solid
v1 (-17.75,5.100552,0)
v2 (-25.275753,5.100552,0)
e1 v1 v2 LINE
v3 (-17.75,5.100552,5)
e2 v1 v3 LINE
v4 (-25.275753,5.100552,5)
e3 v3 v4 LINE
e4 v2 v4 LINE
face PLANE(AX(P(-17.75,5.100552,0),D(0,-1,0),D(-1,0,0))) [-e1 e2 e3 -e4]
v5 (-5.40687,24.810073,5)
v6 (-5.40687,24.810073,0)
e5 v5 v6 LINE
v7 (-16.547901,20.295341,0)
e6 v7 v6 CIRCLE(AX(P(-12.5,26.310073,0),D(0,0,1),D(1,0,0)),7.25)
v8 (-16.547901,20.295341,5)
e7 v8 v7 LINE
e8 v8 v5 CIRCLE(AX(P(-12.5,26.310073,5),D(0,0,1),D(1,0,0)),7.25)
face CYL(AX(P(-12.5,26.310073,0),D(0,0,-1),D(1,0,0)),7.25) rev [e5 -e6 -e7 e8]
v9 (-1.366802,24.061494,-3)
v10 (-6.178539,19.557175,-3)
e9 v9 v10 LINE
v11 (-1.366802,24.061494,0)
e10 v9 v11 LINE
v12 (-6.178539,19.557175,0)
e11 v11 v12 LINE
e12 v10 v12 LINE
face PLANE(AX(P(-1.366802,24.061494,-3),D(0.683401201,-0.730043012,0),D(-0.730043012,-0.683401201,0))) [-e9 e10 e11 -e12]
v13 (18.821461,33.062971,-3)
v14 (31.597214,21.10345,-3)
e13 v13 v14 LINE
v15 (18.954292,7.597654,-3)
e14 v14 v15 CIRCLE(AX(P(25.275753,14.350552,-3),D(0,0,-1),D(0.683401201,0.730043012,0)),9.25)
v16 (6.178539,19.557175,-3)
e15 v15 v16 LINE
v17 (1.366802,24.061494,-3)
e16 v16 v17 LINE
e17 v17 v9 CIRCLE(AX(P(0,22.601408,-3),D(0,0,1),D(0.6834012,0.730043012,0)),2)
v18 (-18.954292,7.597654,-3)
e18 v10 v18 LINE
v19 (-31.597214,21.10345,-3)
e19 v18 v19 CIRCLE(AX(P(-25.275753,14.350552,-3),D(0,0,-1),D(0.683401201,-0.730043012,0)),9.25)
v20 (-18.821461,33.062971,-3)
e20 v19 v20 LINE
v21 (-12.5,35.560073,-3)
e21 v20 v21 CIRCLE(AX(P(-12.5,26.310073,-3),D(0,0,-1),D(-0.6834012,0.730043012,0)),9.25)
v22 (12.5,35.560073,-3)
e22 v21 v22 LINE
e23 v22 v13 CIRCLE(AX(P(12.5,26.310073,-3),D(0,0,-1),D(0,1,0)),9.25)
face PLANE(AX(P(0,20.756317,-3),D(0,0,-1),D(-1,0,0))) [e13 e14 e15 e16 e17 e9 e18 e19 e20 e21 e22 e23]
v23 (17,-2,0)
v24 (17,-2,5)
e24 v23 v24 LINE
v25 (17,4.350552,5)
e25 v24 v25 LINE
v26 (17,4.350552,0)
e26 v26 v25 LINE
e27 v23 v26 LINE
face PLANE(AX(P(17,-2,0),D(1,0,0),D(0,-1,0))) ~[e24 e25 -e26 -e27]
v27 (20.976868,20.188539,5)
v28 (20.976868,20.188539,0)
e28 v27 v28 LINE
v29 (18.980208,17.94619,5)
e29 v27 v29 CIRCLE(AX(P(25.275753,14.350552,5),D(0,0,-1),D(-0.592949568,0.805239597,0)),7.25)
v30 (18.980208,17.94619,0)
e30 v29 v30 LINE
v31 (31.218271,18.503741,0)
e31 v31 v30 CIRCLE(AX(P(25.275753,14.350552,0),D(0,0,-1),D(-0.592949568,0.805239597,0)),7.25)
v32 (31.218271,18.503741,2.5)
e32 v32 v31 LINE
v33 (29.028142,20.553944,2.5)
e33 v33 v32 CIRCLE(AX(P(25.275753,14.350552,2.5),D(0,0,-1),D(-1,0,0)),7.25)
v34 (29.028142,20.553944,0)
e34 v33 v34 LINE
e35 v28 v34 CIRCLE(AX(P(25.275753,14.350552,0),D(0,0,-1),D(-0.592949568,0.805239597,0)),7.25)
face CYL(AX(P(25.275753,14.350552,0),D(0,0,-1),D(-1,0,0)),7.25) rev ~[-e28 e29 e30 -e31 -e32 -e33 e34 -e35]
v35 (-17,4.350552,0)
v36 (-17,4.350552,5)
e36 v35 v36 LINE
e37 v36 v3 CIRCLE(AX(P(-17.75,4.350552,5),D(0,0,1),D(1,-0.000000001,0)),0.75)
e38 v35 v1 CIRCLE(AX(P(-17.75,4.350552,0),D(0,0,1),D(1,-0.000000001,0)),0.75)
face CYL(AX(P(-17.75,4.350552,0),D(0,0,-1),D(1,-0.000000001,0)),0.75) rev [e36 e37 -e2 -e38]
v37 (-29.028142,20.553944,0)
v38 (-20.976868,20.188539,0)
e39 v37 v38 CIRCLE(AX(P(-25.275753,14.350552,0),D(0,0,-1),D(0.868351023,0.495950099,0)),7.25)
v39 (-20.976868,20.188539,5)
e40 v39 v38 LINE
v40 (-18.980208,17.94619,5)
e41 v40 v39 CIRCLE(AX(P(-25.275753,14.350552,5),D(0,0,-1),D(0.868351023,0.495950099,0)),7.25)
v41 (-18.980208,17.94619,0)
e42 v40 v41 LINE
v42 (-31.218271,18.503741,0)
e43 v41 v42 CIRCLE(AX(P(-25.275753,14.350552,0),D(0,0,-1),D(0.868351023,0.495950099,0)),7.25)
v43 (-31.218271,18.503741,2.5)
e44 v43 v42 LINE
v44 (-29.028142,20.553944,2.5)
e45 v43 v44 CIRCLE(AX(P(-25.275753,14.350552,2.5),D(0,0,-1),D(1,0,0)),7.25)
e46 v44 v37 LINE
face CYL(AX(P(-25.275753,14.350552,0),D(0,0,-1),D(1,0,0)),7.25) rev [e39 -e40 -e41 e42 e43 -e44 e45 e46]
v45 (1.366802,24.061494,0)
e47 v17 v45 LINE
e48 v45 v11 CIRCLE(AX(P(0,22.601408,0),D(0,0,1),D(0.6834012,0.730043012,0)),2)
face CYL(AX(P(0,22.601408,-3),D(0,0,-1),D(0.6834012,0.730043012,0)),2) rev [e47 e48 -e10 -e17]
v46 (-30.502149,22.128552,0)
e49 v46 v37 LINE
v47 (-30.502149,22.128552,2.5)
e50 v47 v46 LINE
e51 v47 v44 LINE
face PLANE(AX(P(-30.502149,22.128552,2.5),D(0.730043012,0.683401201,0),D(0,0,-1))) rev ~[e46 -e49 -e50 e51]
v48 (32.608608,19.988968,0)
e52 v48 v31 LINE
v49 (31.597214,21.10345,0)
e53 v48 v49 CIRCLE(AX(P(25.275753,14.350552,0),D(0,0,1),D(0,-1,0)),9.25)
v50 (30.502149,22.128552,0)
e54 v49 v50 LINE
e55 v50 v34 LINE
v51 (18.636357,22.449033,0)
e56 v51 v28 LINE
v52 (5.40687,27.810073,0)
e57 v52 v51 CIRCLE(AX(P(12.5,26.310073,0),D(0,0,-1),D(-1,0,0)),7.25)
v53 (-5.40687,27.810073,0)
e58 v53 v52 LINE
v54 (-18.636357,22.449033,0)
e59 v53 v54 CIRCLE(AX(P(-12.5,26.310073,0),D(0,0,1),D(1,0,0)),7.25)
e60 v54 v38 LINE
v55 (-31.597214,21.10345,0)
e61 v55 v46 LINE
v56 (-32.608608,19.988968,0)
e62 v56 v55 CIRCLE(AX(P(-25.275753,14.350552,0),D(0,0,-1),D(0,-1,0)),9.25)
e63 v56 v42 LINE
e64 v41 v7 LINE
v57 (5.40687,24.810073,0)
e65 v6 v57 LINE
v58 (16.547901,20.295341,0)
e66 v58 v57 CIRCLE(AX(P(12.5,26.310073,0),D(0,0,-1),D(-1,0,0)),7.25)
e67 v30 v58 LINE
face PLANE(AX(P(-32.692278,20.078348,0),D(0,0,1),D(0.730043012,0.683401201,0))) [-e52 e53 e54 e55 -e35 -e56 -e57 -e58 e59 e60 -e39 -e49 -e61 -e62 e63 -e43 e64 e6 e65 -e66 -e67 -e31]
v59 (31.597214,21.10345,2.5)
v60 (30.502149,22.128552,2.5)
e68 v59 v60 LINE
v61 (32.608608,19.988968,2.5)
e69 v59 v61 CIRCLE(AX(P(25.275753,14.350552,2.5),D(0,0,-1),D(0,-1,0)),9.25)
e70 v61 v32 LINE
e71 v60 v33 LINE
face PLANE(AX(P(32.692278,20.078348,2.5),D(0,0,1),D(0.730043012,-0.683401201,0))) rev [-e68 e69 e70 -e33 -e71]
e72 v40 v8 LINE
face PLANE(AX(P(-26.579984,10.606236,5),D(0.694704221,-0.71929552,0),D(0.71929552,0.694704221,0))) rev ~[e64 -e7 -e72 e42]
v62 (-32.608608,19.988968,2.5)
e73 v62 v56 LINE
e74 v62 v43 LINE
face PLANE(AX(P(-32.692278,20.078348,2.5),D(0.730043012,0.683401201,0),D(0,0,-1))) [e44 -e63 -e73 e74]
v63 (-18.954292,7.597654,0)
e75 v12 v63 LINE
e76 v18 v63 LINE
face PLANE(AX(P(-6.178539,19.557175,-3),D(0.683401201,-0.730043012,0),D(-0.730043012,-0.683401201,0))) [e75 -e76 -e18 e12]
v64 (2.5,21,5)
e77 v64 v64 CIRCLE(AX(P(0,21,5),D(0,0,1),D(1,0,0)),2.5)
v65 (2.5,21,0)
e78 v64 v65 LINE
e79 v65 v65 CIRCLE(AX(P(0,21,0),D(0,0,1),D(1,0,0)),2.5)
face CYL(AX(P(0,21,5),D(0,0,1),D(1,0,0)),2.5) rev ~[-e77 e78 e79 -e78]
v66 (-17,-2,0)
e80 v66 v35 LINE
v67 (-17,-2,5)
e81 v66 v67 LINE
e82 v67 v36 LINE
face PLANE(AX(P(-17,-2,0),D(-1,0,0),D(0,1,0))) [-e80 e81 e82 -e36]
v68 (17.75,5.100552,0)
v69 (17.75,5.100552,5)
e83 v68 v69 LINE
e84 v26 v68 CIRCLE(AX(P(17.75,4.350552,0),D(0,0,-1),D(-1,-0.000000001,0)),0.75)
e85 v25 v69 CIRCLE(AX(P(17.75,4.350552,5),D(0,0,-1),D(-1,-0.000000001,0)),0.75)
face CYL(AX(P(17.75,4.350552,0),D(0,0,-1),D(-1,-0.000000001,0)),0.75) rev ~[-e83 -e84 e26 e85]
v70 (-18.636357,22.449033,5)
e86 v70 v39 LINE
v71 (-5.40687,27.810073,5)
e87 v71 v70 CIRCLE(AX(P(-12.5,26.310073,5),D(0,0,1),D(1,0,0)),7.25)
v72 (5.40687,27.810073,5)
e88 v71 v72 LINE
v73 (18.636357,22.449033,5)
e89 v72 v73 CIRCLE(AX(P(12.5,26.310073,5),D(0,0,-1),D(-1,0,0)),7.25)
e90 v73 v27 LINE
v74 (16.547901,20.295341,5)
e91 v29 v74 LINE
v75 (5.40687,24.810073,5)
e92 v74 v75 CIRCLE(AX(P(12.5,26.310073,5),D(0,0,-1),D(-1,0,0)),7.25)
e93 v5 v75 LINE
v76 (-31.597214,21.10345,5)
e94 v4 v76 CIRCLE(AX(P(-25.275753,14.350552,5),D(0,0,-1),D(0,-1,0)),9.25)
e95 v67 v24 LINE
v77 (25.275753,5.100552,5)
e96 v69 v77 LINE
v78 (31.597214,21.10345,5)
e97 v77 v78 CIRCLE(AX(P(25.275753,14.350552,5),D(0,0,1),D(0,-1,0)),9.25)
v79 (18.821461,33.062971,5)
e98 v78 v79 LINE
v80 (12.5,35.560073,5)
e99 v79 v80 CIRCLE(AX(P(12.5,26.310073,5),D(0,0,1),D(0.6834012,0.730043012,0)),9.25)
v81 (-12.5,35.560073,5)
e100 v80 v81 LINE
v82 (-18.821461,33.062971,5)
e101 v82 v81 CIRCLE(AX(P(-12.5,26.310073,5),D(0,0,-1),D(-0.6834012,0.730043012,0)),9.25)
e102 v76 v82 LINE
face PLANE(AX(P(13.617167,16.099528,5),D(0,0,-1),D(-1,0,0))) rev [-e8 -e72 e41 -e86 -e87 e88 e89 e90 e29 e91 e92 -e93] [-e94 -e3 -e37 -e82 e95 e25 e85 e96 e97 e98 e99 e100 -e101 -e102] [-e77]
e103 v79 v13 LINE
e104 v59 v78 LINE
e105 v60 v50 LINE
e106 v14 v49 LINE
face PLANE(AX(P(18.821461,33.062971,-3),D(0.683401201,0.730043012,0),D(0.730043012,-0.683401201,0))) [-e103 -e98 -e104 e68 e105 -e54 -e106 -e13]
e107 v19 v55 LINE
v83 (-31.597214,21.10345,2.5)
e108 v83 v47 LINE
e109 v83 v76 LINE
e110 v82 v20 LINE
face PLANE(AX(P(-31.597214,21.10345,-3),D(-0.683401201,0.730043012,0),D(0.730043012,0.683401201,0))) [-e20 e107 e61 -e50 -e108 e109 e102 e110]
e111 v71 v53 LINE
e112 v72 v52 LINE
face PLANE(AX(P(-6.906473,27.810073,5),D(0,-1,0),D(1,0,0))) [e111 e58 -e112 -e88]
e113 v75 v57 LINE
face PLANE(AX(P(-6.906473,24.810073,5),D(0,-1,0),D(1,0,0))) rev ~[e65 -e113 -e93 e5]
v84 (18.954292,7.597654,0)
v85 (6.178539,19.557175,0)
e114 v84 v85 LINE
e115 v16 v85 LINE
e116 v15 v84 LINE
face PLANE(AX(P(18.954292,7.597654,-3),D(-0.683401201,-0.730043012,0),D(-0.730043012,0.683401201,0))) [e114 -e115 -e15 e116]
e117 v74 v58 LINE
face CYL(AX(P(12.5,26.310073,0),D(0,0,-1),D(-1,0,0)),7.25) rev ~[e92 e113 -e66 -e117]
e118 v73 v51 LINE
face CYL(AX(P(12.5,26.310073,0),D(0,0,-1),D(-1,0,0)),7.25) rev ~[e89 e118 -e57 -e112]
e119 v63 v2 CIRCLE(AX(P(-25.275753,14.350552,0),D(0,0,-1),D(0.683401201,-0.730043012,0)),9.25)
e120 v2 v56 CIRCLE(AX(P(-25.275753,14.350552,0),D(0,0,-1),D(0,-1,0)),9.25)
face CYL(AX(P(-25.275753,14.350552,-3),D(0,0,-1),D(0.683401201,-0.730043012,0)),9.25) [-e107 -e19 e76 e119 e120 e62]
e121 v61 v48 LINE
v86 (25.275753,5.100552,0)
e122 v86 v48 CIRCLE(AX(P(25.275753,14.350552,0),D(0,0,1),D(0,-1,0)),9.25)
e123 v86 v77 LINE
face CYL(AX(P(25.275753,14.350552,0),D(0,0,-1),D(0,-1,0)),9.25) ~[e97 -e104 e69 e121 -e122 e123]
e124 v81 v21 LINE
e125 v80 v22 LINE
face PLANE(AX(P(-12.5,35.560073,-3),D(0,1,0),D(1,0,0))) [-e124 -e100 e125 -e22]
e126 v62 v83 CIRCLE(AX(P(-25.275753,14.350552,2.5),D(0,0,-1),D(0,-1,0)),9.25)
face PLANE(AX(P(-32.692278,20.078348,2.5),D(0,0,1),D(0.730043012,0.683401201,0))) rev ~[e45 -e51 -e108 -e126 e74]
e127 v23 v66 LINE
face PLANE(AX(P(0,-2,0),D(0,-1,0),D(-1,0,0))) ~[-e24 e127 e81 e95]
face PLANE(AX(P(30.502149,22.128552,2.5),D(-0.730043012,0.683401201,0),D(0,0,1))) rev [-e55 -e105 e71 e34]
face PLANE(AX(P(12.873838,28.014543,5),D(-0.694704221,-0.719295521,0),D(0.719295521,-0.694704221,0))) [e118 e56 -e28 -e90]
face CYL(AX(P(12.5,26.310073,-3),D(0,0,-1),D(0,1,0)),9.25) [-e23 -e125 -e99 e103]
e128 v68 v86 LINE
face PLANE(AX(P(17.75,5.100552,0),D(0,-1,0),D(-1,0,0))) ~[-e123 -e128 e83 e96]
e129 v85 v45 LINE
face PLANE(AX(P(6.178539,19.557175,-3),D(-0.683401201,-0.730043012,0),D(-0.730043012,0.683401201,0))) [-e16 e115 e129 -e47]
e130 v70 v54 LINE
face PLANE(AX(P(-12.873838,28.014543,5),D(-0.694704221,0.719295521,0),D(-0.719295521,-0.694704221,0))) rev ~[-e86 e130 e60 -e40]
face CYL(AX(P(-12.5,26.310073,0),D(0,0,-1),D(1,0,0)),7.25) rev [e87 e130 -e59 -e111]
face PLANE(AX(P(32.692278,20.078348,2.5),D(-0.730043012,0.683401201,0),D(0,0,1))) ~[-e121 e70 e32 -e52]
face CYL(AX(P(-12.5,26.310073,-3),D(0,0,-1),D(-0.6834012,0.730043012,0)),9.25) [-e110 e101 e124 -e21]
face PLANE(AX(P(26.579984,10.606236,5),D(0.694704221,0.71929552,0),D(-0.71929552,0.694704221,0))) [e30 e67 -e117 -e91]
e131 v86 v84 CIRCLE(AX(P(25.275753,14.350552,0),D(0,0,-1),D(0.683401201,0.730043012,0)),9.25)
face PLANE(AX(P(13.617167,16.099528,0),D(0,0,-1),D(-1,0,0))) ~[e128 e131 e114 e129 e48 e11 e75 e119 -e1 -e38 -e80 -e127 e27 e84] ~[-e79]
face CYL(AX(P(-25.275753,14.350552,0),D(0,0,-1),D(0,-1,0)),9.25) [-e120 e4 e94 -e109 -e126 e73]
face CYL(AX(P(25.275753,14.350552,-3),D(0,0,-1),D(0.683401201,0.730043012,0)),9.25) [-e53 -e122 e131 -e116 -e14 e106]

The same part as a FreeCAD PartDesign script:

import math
import FreeCAD as App
import Part
import Sketcher
Q = App.Units.Quantity


def add_polygon(sketch, points):
    """Adds a closed chain of lines whose ends are joined by coincident constraints."""
    first, n = sketch.GeometryCount, len(points)
    for a, b in zip(points, points[1:] + points[:1]):
        sketch.addGeometry(Part.LineSegment(App.Vector(*a, 0), App.Vector(*b, 0)), False)
    for i in range(n):
        sketch.addConstraint(Sketcher.Constraint("Coincident", first + i, 2, first + (i + 1) % n, 1))

doc = App.newDocument("Part")
body = doc.addObject("PartDesign::Body", "Body")

sketch1 = body.newObject("Sketcher::SketchObject", "Sketch")
sketch1.AttachmentSupport = (doc.getObject("XY_Plane"), [""])
sketch1.MapMode = "FlatFace"
sketch1.addGeometry([
    Part.ArcOfCircle(Part.Circle(App.Vector(-25.3, 14.4, 0), App.Vector(0, 0, 1), 9.2), math.radians(133), math.radians(270)),
    Part.LineSegment(App.Vector(-25.3, 5.1, 0), App.Vector(-17.8, 5.1, 0)),
    Part.ArcOfCircle(Part.Circle(App.Vector(-17.8, 4.4, 0), App.Vector(0, 0, 1), 0.8), math.radians(0), math.radians(90)),
    Part.LineSegment(App.Vector(-17, 4.4, 0), App.Vector(-17, -2, 0)),
    Part.LineSegment(App.Vector(-17, -2, 0), App.Vector(0, -2, 0)),
    Part.LineSegment(App.Vector(0, -2, 0), App.Vector(0, 35.6, 0)),
    Part.LineSegment(App.Vector(0, 35.6, 0), App.Vector(-12.5, 35.6, 0)),
    Part.ArcOfCircle(Part.Circle(App.Vector(-12.5, 26.3, 0), App.Vector(0, 0, 1), 9.3), math.radians(90), math.radians(133)),
    Part.LineSegment(App.Vector(-18.8, 33.1, 0), App.Vector(-31.6, 21.1, 0)),
    Part.Circle(App.Vector(-25.3, 14.4, 0), App.Vector(0, 0, 1), 7.2),
    Part.Circle(App.Vector(-12.5, 26.3, 0), App.Vector(0, 0, 1), 7.2),
], False)
sketch1.addConstraint([
    Sketcher.Constraint("Tangent", 0, 2, 1, 1),
    Sketcher.Constraint("Tangent", 1, 2, 2, 2),
    Sketcher.Constraint("Tangent", 2, 1, 3, 1),
    Sketcher.Constraint("Coincident", 3, 2, 4, 1),
    Sketcher.Constraint("Coincident", 4, 2, 5, 1),
    Sketcher.Constraint("Coincident", 5, 2, 6, 1),
    Sketcher.Constraint("Tangent", 6, 2, 7, 1),
    Sketcher.Constraint("Tangent", 7, 2, 8, 1),
    Sketcher.Constraint("Tangent", 8, 2, 0, 1),
    Sketcher.Constraint("Horizontal", 1),
    Sketcher.Constraint("Vertical", 3),
    Sketcher.Constraint("Horizontal", 4),
    Sketcher.Constraint("Vertical", 5),
    Sketcher.Constraint("Horizontal", 6),
    Sketcher.Constraint("Coincident", 9, 3, 0, 3),
    Sketcher.Constraint("Coincident", 10, 3, 7, 3),
    Sketcher.Constraint("Equal", 0, 7),
    Sketcher.Constraint("Equal", 9, 10),
    Sketcher.Constraint("PointOnObject", 4, 2, -2),
    Sketcher.Constraint("Diameter", 9, 14.5),
    Sketcher.Constraint("DistanceX", 4, 1, 4, 2, 17.0),
    Sketcher.Constraint("Radius", 0, 9.25),
    Sketcher.Constraint("Radius", 2, 0.75),
    Sketcher.Constraint("DistanceX", 6, 2, 6, 1, 12.5),
    Sketcher.Constraint("DistanceY", 3, 2, -1, 1, 2.0),
    Sketcher.Constraint("Distance", 8, 17.5),
    Sketcher.Constraint("Angle", 8, Q("-136.89 deg")),
    Sketcher.Constraint("DistanceY", 3, 2, 3, 1, 6.350552),
])
pad1 = body.newObject("PartDesign::Pad", "Pad")
pad1.Profile = sketch1
pad1.Length = 5
doc.recompute()

mirrored = body.newObject("PartDesign::Mirrored", "Mirrored")
mirrored.Originals = [pad1]
mirrored.MirrorPlane = (doc.getObject("YZ_Plane"), [""])
body.Tip = mirrored

sketch2 = body.newObject("Sketcher::SketchObject", "Sketch001")
sketch2.AttachmentSupport = (doc.getObject("XY_Plane"), [""])
sketch2.MapMode = "FlatFace"
sketch2.AttachmentOffset = App.Placement(App.Vector(0, 0, -3), App.Rotation())
sketch2.addGeometry([
    Part.LineSegment(App.Vector(-31.6, 21.1, 0), App.Vector(-18.8, 33.1, 0)),
    Part.ArcOfCircle(Part.Circle(App.Vector(-12.5, 26.3, 0), App.Vector(0, 0, 1), 9.3), math.radians(90), math.radians(133)),
    Part.LineSegment(App.Vector(-12.5, 35.6, 0), App.Vector(12.5, 35.6, 0)),
    Part.ArcOfCircle(Part.Circle(App.Vector(12.5, 26.3, 0), App.Vector(0, 0, 1), 9.3), math.radians(47), math.radians(90)),
    Part.LineSegment(App.Vector(18.8, 33.1, 0), App.Vector(31.6, 21.1, 0)),
    Part.ArcOfCircle(Part.Circle(App.Vector(25.3, 14.4, 0), App.Vector(0, 0, 1), 9.2), math.radians(-133), math.radians(47)),
    Part.LineSegment(App.Vector(19, 7.6, 0), App.Vector(6.2, 19.6, 0)),
    Part.LineSegment(App.Vector(6.2, 19.6, 0), App.Vector(1.4, 24.1, 0)),
    Part.ArcOfCircle(Part.Circle(App.Vector(0, 22.6, 0), App.Vector(0, 0, 1), 2), math.radians(47), math.radians(133)),
    Part.LineSegment(App.Vector(-1.4, 24.1, 0), App.Vector(-6.2, 19.6, 0)),
    Part.LineSegment(App.Vector(-6.2, 19.6, 0), App.Vector(-19, 7.6, 0)),
    Part.ArcOfCircle(Part.Circle(App.Vector(-25.3, 14.4, 0), App.Vector(0, 0, 1), 9.2), math.radians(133), math.radians(313)),
], False)
sketch2.addConstraint([
    Sketcher.Constraint("Tangent", 0, 2, 1, 2),
    Sketcher.Constraint("Tangent", 1, 1, 2, 1),
    Sketcher.Constraint("Tangent", 2, 2, 3, 2),
    Sketcher.Constraint("Tangent", 3, 1, 4, 1),
    Sketcher.Constraint("Tangent", 4, 2, 5, 2),
    Sketcher.Constraint("Tangent", 5, 1, 6, 1),
    Sketcher.Constraint("Coincident", 6, 2, 7, 1),
    Sketcher.Constraint("Tangent", 7, 2, 8, 1),
    Sketcher.Constraint("Tangent", 8, 2, 9, 1),
    Sketcher.Constraint("Coincident", 9, 2, 10, 1),
    Sketcher.Constraint("Tangent", 10, 2, 11, 2),
    Sketcher.Constraint("Tangent", 11, 1, 0, 1),
    Sketcher.Constraint("Horizontal", 2),
    Sketcher.Constraint("Equal", 1, 3),
    Sketcher.Constraint("Equal", 3, 5),
    Sketcher.Constraint("Equal", 5, 11),
    Sketcher.Constraint("Symmetric", 5, 3, 11, 3, -2),
    Sketcher.Constraint("Symmetric", 7, 2, 8, 2, -2),
    Sketcher.Constraint("Parallel", 4, 6),
    Sketcher.Constraint("Parallel", 6, 7),
    Sketcher.Constraint("Parallel", 0, 9),
    Sketcher.Constraint("Horizontal", 6, 2, 9, 2),
    Sketcher.Constraint("Equal", 4, 6),
    Sketcher.Constraint("Radius", 8, 2.0),
    Sketcher.Constraint("DistanceX", 2, 1, 2, 2, 25.0),
    Sketcher.Constraint("Radius", 1, 9.25),
    Sketcher.Constraint("Distance", 0, 17.5),
    Sketcher.Constraint("Angle", 0, Q("43.11 deg")),
    Sketcher.Constraint("DistanceY", -1, 1, 8, 3, 22.601408),
])
pad2 = body.newObject("PartDesign::Pad", "Pad001")
pad2.Profile = sketch2
pad2.Length = 3

sketch3 = body.newObject("Sketcher::SketchObject", "Sketch002")
sketch3.AttachmentSupport = (doc.getObject("XY_Plane"), [""])
sketch3.MapMode = "FlatFace"
sketch3.AttachmentOffset = App.Placement(App.Vector(0, 0, 5), App.Rotation())
add_polygon(sketch3, [(-12.9, 28), (-28.7, 12.8), (-26.6, 10.6), (-10.8, 25.9)])
add_polygon(sketch3, [(-6.9, 27.8), (-6.9, 24.8), (8.5, 24.8), (8.5, 27.8)])
add_polygon(sketch3, [(10.8, 25.9), (26.6, 10.6), (28.7, 12.8), (12.9, 28)])
sketch3.addConstraint([
    Sketcher.Constraint("Vertical", 4),
    Sketcher.Constraint("Horizontal", 5),
    Sketcher.Constraint("Vertical", 6),
    Sketcher.Constraint("Horizontal", 7),
    Sketcher.Constraint("Symmetric", 1, 2, 8, 2, -2),
    Sketcher.Constraint("Symmetric", 0, 2, 9, 2, -2),
    Sketcher.Constraint("Symmetric", 3, 2, 10, 2, -2),
    Sketcher.Constraint("Symmetric", 2, 2, 11, 2, -2),
    Sketcher.Constraint("Perpendicular", 0, 1),
    Sketcher.Constraint("Perpendicular", 1, 2),
    Sketcher.Constraint("Perpendicular", 2, 3),
    Sketcher.Constraint("DistanceY", 4, 2, 4, 1, 3.0),
    Sketcher.Constraint("Distance", 1, 3.0),
    Sketcher.Constraint("DistanceX", 5, 1, 5, 2, 15.42907),
    Sketcher.Constraint("DistanceX", 5, 2, 9, 2, 20.1415),
    Sketcher.Constraint("DistanceX", 4, 2, 11, 2, 17.696199),
    Sketcher.Constraint("DistanceX", 3, 2, -1, 1, 12.873838),
    Sketcher.Constraint("DistanceX", 1, 2, 2, 2, 15.790259),
    Sketcher.Constraint("DistanceY", 4, 2, 3, 2, 3.20447),
    Sketcher.Constraint("DistanceY", -1, 1, 0, 2, 12.764122),
])
pocket1 = body.newObject("PartDesign::Pocket", "Pocket")
pocket1.Profile = sketch3
pocket1.Length = 5

sketch4 = body.newObject("Sketcher::SketchObject", "Sketch003")
sketch4.Placement = App.Placement(App.Vector(-25.285844, 27.011591, 0), App.Rotation(App.Vector(0.730043012, 0.683401201, 0), App.Vector(0, 0, -1.000000001), App.Vector(-0.683401201, 0.730043012, 0), "ZXY"))
add_polygon(sketch4, [(-10.1, 0), (-10.1, -2.5), (-7.1, -2.5), (-7.1, 0)])
sketch4.addConstraint([
    Sketcher.Constraint("Vertical", 0),
    Sketcher.Constraint("Horizontal", 1),
    Sketcher.Constraint("Vertical", 2),
    Sketcher.Constraint("Horizontal", 3),
    Sketcher.Constraint("PointOnObject", 2, 2, -1),
    Sketcher.Constraint("DistanceX", 1, 1, 1, 2, 3.0),
    Sketcher.Constraint("DistanceY", 0, 2, 0, 1, 2.5),
    Sketcher.Constraint("DistanceX", 0, 2, -1, 1, 10.145202),
])
pocket2 = body.newObject("PartDesign::Pocket", "Pocket001")
pocket2.Profile = sketch4
pocket2.Length = 10
doc.recompute()

mirrored2 = body.newObject("PartDesign::Mirrored", "Mirrored001")
mirrored2.Originals = [pocket2]
mirrored2.MirrorPlane = (doc.getObject("YZ_Plane"), [""])
body.Tip = mirrored2

sketch5 = body.newObject("Sketcher::SketchObject", "Sketch004")
sketch5.AttachmentSupport = (doc.getObject("XY_Plane"), [""])
sketch5.MapMode = "FlatFace"
sketch5.AttachmentOffset = App.Placement(App.Vector(0, 0, 5), App.Rotation())
sketch5.addGeometry(Part.Circle(App.Vector(0, 21, 0), App.Vector(0, 0, 1), 2.5), False)
sketch5.addConstraint([
    Sketcher.Constraint("PointOnObject", 0, 3, -2),
    Sketcher.Constraint("Diameter", 0, 5.0),
    Sketcher.Constraint("DistanceY", -1, 1, 0, 3, 21.0),
])
pocket3 = body.newObject("PartDesign::Pocket", "Pocket002")
pocket3.Profile = sketch5
pocket3.Length = 10

doc.recompute()
